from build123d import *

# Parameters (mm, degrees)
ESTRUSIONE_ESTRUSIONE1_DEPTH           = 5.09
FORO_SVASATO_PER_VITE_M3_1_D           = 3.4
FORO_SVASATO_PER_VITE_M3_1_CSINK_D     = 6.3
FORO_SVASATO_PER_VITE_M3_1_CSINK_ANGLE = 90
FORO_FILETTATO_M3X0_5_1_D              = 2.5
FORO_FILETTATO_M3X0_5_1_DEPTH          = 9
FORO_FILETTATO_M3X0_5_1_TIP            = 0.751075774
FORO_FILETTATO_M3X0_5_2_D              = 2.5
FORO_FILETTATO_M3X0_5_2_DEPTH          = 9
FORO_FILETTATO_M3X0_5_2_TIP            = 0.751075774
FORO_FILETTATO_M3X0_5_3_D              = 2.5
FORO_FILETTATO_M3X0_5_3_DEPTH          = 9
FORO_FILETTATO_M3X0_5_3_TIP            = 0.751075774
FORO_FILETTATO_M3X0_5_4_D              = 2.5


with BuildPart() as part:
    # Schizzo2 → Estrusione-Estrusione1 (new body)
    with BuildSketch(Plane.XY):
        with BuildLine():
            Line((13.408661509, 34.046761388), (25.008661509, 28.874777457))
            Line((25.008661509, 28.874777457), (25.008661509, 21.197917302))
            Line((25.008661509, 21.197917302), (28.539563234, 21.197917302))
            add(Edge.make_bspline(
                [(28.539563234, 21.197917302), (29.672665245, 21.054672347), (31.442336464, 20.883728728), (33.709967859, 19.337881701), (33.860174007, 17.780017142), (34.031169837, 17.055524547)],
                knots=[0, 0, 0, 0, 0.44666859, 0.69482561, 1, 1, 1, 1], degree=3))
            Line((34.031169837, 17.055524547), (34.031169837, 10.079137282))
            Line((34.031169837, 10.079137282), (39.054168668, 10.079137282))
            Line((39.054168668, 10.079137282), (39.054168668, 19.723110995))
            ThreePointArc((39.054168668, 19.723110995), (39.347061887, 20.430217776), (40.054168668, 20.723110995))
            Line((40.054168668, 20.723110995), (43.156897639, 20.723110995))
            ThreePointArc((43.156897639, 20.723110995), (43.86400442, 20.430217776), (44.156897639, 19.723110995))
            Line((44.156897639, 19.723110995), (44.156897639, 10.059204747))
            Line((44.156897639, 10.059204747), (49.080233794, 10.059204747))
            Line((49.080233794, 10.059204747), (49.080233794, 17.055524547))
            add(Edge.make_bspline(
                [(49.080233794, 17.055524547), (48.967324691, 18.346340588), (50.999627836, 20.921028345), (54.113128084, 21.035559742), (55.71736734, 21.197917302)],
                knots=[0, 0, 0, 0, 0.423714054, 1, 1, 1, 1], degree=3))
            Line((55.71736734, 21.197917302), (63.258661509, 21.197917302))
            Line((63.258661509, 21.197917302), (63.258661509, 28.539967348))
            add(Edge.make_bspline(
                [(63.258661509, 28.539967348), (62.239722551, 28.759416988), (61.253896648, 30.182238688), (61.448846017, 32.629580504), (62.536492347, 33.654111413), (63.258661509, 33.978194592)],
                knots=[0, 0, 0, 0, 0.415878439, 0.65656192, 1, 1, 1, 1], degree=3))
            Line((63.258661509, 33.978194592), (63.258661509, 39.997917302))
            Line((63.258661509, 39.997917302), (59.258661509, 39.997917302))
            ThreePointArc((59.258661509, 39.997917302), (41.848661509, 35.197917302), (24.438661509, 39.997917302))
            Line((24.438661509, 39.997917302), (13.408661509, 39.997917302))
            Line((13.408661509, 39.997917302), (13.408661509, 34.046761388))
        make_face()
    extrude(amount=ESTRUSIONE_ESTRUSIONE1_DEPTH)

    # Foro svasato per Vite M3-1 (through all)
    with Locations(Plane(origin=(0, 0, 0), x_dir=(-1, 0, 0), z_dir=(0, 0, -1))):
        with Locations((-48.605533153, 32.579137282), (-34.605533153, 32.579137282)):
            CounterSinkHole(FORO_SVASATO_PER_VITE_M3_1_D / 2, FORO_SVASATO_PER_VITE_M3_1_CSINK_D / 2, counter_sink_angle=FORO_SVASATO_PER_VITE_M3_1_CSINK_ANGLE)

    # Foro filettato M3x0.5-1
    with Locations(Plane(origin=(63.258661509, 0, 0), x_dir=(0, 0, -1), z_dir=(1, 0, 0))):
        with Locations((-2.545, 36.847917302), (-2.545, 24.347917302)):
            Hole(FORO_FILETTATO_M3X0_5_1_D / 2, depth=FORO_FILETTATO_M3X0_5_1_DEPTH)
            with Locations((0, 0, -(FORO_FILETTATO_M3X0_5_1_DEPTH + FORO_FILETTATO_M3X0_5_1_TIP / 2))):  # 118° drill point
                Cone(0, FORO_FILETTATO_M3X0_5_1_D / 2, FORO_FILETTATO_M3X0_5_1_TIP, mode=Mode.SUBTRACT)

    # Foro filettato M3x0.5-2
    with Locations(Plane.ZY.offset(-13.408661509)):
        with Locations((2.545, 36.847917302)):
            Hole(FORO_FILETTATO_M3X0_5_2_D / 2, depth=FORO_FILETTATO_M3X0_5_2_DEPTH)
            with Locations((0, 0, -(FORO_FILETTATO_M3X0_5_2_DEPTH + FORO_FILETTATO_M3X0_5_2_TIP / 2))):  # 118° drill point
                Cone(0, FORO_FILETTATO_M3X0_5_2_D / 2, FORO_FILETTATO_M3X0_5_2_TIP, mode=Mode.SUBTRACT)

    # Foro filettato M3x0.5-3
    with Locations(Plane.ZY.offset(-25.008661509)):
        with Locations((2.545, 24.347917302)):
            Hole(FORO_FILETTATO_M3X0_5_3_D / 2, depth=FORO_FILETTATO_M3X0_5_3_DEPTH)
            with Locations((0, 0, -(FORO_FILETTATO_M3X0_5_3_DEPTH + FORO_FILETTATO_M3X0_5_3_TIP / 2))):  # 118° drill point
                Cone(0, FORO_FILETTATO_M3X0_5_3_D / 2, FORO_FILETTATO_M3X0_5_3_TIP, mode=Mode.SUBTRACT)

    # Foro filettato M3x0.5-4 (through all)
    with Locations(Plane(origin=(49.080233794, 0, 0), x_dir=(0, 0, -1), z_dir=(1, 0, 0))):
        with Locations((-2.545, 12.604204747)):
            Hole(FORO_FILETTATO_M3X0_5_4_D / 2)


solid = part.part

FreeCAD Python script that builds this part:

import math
import FreeCAD as App
import Part
import Sketcher
Q = App.Units.Quantity

doc = App.newDocument("Part")
params = doc.addObject("Spreadsheet::Sheet", "Params")
for row, (alias, value) in enumerate([
    ("sketch1_radius", "1 mm"),
    ("sketch1_width", "4 mm"),
    ("sketch1_width2", "11.03 mm"),
    ("pad1_length", "5.09 mm"),
    ("sketch2_diameter", "3.4 mm"),
    ("hole_diameter", "3.4 mm"),
    ("hole_csink_diameter", "6.3 mm"),
    ("sketch3_diameter", "2.5 mm"),
    ("hole2_diameter", "2.5 mm"),
    ("hole2_depth", "9 mm"),
    ("sketch4_diameter", "2.5 mm"),
    ("hole3_diameter", "2.5 mm"),
    ("hole3_depth", "9 mm"),
    ("sketch5_diameter", "2.5 mm"),
    ("hole4_diameter", "2.5 mm"),
    ("hole4_depth", "9 mm"),
    ("sketch6_diameter", "2.5 mm"),
    ("hole5_diameter", "2.5 mm"),
], start=1):
    params.set(f"A{row}", alias)
    params.set(f"B{row}", "=" + value)
    params.setAlias(f"B{row}", alias)

body = doc.addObject("PartDesign::Body", "Body")

# Sketch on XY plane
sketch1 = doc.addObject("Sketcher::SketchObject", "Sketch")
body.addObject(sketch1)
sketch1.AttachmentSupport = (doc.XY_Plane, [""])
sketch1.MapMode = "FlatFace"
sketch1.addGeometry([
    Part.LineSegment(App.Vector(13.408662, 34.046761, 0), App.Vector(25.008662, 28.874777, 0)),  # 0
    Part.LineSegment(App.Vector(25.008662, 28.874777, 0), App.Vector(25.008662, 21.197917, 0)),  # 1
    Part.LineSegment(App.Vector(25.008662, 21.197917, 0), App.Vector(28.539563, 21.197917, 0)),  # 2
    Part.BSplineCurve([App.Vector(28.539563, 21.197917, 0), App.Vector(29.672665, 21.054672, 0), App.Vector(31.442336, 20.883729, 0), App.Vector(33.709968, 19.337882, 0), App.Vector(33.860174, 17.780017, 0), App.Vector(34.03117, 17.055525, 0)], [4, 1, 1, 4], [0, 0.44666859, 0.69482561, 1], False, 3, [1, 1, 1, 1, 1, 1], False),  # 3
    Part.LineSegment(App.Vector(34.03117, 17.055525, 0), App.Vector(34.03117, 10.079137, 0)),  # 4
    Part.LineSegment(App.Vector(34.03117, 10.079137, 0), App.Vector(39.054169, 10.079137, 0)),  # 5
    Part.LineSegment(App.Vector(39.054169, 10.079137, 0), App.Vector(39.054169, 19.723111, 0)),  # 6
    Part.ArcOfCircle(Part.Circle(App.Vector(40.054169, 19.723111, 0), App.Vector(0, 0, 1), 1), math.radians(90), math.radians(180)),  # 7
    Part.LineSegment(App.Vector(40.054169, 20.723111, 0), App.Vector(43.156898, 20.723111, 0)),  # 8
    Part.ArcOfCircle(Part.Circle(App.Vector(43.156898, 19.723111, 0), App.Vector(0, 0, 1), 1), math.radians(0), math.radians(90)),  # 9
    Part.LineSegment(App.Vector(44.156898, 19.723111, 0), App.Vector(44.156898, 10.059205, 0)),  # 10
    Part.LineSegment(App.Vector(44.156898, 10.059205, 0), App.Vector(49.080234, 10.059205, 0)),  # 11
    Part.LineSegment(App.Vector(49.080234, 10.059205, 0), App.Vector(49.080234, 17.055525, 0)),  # 12
    Part.BSplineCurve([App.Vector(49.080234, 17.055525, 0), App.Vector(48.967325, 18.346341, 0), App.Vector(50.999628, 20.921028, 0), App.Vector(54.113128, 21.03556, 0), App.Vector(55.717367, 21.197917, 0)], [4, 1, 4], [0, 0.423714054, 1], False, 3, [1, 1, 1, 1, 1], False),  # 13
    Part.LineSegment(App.Vector(55.717367, 21.197917, 0), App.Vector(63.258662, 21.197917, 0)),  # 14
    Part.LineSegment(App.Vector(63.258662, 21.197917, 0), App.Vector(63.258662, 28.539967, 0)),  # 15
    Part.BSplineCurve([App.Vector(63.258662, 28.539967, 0), App.Vector(62.239723, 28.759417, 0), App.Vector(61.253897, 30.182239, 0), App.Vector(61.448846, 32.629581, 0), App.Vector(62.536492, 33.654111, 0), App.Vector(63.258662, 33.978195, 0)], [4, 1, 1, 4], [0, 0.415878439, 0.65656192, 1], False, 3, [1, 1, 1, 1, 1, 1], False),  # 16
    Part.LineSegment(App.Vector(63.258662, 33.978195, 0), App.Vector(63.258662, 39.997917, 0)),  # 17
    Part.LineSegment(App.Vector(63.258662, 39.997917, 0), App.Vector(59.258662, 39.997917, 0)),  # 18
    Part.ArcOfCircle(Part.Circle(App.Vector(41.848662, 69.171678, 0), App.Vector(0, 0, 1), 33.97376), math.radians(-120.827449), math.radians(-59.172551)),  # 19
    Part.LineSegment(App.Vector(24.438662, 39.997917, 0), App.Vector(13.408662, 39.997917, 0)),  # 20
    Part.LineSegment(App.Vector(13.408662, 39.997917, 0), App.Vector(13.408662, 34.046761, 0)),  # 21
], False)
sketch1.addConstraint([
    Sketcher.Constraint("Block", 3),
    Sketcher.Constraint("Block", 13),
    Sketcher.Constraint("Block", 16),
    Sketcher.Constraint("Coincident", 0, 2, 1, 1),
    Sketcher.Constraint("Coincident", 1, 2, 2, 1),
    Sketcher.Constraint("Coincident", 2, 2, 3, 1),
    Sketcher.Constraint("Coincident", 3, 2, 4, 1),
    Sketcher.Constraint("Coincident", 4, 2, 5, 1),
    Sketcher.Constraint("Coincident", 5, 2, 6, 1),
    Sketcher.Constraint("Tangent", 6, 2, 7, 2),
    Sketcher.Constraint("Tangent", 7, 1, 8, 1),
    Sketcher.Constraint("Tangent", 8, 2, 9, 2),
    Sketcher.Constraint("Tangent", 9, 1, 10, 1),
    Sketcher.Constraint("Coincident", 10, 2, 11, 1),
    Sketcher.Constraint("Coincident", 11, 2, 12, 1),
    Sketcher.Constraint("Coincident", 12, 2, 13, 1),
    Sketcher.Constraint("Coincident", 13, 2, 14, 1),
    Sketcher.Constraint("Coincident", 14, 2, 15, 1),
    Sketcher.Constraint("Coincident", 15, 2, 16, 1),
    Sketcher.Constraint("Coincident", 16, 2, 17, 1),
    Sketcher.Constraint("Coincident", 17, 2, 18, 1),
    Sketcher.Constraint("Coincident", 18, 2, 19, 2),
    Sketcher.Constraint("Coincident", 19, 1, 20, 1),
    Sketcher.Constraint("Coincident", 20, 2, 21, 1),
    Sketcher.Constraint("Coincident", 21, 2, 0, 1),
    Sketcher.Constraint("Vertical", 1),
    Sketcher.Constraint("Horizontal", 2),
    Sketcher.Constraint("Vertical", 4),
    Sketcher.Constraint("Horizontal", 5),
    Sketcher.Constraint("Vertical", 6),
    Sketcher.Constraint("Horizontal", 8),
    Sketcher.Constraint("Vertical", 10),
    Sketcher.Constraint("Horizontal", 11),
    Sketcher.Constraint("Vertical", 12),
    Sketcher.Constraint("Horizontal", 14),
    Sketcher.Constraint("Vertical", 15),
    Sketcher.Constraint("Vertical", 17),
    Sketcher.Constraint("Horizontal", 18),
    Sketcher.Constraint("Horizontal", 20),
    Sketcher.Constraint("Vertical", 21),
    Sketcher.Constraint("Equal", 7, 9),
    Sketcher.Constraint("Horizontal", 18, 2, 19, 1),
    Sketcher.Constraint("Radius", 7, Q("1 mm")),
    Sketcher.Constraint("DistanceX", 18, 2, 18, 1, Q("4 mm")),
    Sketcher.Constraint("DistanceX", 20, 2, 20, 1, Q("11.03 mm")),
    Sketcher.Constraint("DistanceY", 14, 2, 17, 2, Q("18.8 mm")),
    Sketcher.Constraint("DistanceX", 20, 2, 0, 2, Q("11.6 mm")),
    Sketcher.Constraint("DistanceX", 5, 1, 5, 2, Q("5.022999 mm")),
    Sketcher.Constraint("Radius", 19, Q("33.97376 mm")),
    Sketcher.Constraint("DistanceX", 0, 2, 19, 3, Q("16.84 mm")),
    Sketcher.Constraint("DistanceX", 8, 1, 8, 2, Q("3.102729 mm")),
    Sketcher.Constraint("DistanceY", 1, 2, 1, 1, Q("7.67686 mm")),
    Sketcher.Constraint("DistanceY", 12, 1, 12, 2, Q("6.99632 mm")),
    Sketcher.Constraint("DistanceY", 4, 2, 4, 1, Q("6.976387 mm")),
    Sketcher.Constraint("DistanceY", 6, 1, 6, 2, Q("9.643974 mm")),
    Sketcher.Constraint("DistanceY", 21, 2, 21, 1, Q("5.951156 mm")),
])
sketch1.setExpression("Constraints[42]", "Params.sketch1_radius")
sketch1.setExpression("Constraints[43]", "Params.sketch1_width")
sketch1.setExpression("Constraints[44]", "Params.sketch1_width2")
pad1 = doc.addObject("PartDesign::Pad", "Pad")
body.addObject(pad1)
pad1.Profile = sketch1
pad1.setExpression("Length", "Params.pad1_length")

# Sketch on XY plane
sketch2 = doc.addObject("Sketcher::SketchObject", "Sketch001")
body.addObject(sketch2)
sketch2.AttachmentSupport = (doc.XY_Plane, [""])
sketch2.MapMode = "FlatFace"
sketch2.addGeometry([
    Part.Circle(App.Vector(48.6, 32.6, 0), App.Vector(0, 0, 1), 1.7),
    Part.Circle(App.Vector(34.6, 32.6, 0), App.Vector(0, 0, 1), 1.7),
], False)
sketch2.addConstraint([
    Sketcher.Constraint("Equal", 0, 1),
    Sketcher.Constraint("Horizontal", 0, 3, 1, 3),
    Sketcher.Constraint("Diameter", 0, Q("3.4 mm")),
    Sketcher.Constraint("DistanceX", 1, 3, 0, 3, Q("14 mm")),
    Sketcher.Constraint("DistanceX", -1, 1, 0, 3, Q("48.605533 mm")),
    Sketcher.Constraint("DistanceY", -1, 1, 0, 3, Q("32.579137 mm")),
])
sketch2.setExpression("Constraints[2]", "Params.sketch2_diameter")
doc.recompute()
hole = doc.addObject("PartDesign::Hole", "Hole")
body.addObject(hole)
hole.Profile = sketch2
hole.ThreadType = "None"
hole.setExpression("Diameter", "Params.hole_diameter")
hole.DepthType = "ThroughAll"
hole.HoleCutType = "Countersink"
hole.setExpression("HoleCutDiameter", "Params.hole_csink_diameter")
hole.HoleCutCountersinkAngle = 90
hole.Reversed = True

# Sketch on YZ plane
sketch3 = doc.addObject("Sketcher::SketchObject", "Sketch002")
body.addObject(sketch3)
sketch3.AttachmentSupport = (doc.YZ_Plane, [""])
sketch3.MapMode = "FlatFace"
sketch3.AttachmentOffset = App.Placement(App.Vector(0, 0, 63.258662), App.Rotation())
sketch3.addGeometry([
    Part.Circle(App.Vector(36.8, 2.5, 0), App.Vector(0, 0, 1), 1.2),
    Part.Circle(App.Vector(24.3, 2.5, 0), App.Vector(0, 0, 1), 1.2),
], False)
sketch3.addConstraint([
    Sketcher.Constraint("Equal", 0, 1),
    Sketcher.Constraint("Horizontal", 0, 3, 1, 3),
    Sketcher.Constraint("Diameter", 0, Q("2.5 mm")),
    Sketcher.Constraint("DistanceX", 1, 3, 0, 3, Q("12.5 mm")),
    Sketcher.Constraint("DistanceY", -1, 1, 0, 3, Q("2.545 mm")),
    Sketcher.Constraint("DistanceX", -1, 1, 0, 3, Q("36.847917 mm")),
])
sketch3.setExpression("Constraints[2]", "Params.sketch3_diameter")
doc.recompute()
hole2 = doc.addObject("PartDesign::Hole", "Hole001")
body.addObject(hole2)
hole2.Profile = sketch3
hole2.ThreadType = "None"
hole2.setExpression("Diameter", "Params.hole2_diameter")
hole2.DepthType = "Dimension"
hole2.setExpression("Depth", "Params.hole2_depth")
hole2.DrillPoint = "Angled"
hole2.DrillPointAngle = 118

# Sketch on YZ plane
sketch4 = doc.addObject("Sketcher::SketchObject", "Sketch003")
body.addObject(sketch4)
sketch4.AttachmentSupport = (doc.YZ_Plane, [""])
sketch4.MapMode = "FlatFace"
sketch4.AttachmentOffset = App.Placement(App.Vector(0, 0, 13.408662), App.Rotation())
sketch4.addGeometry(Part.Circle(App.Vector(36.8, 2.5, 0), App.Vector(0, 0, 1), 1.2), False)
sketch4.addConstraint([
    Sketcher.Constraint("Diameter", 0, Q("2.5 mm")),
    Sketcher.Constraint("DistanceY", -1, 1, 0, 3, Q("2.545 mm")),
    Sketcher.Constraint("DistanceX", -1, 1, 0, 3, Q("36.847917 mm")),
])
sketch4.setExpression("Constraints[0]", "Params.sketch4_diameter")
doc.recompute()
hole3 = doc.addObject("PartDesign::Hole", "Hole002")
body.addObject(hole3)
hole3.Profile = sketch4
hole3.ThreadType = "None"
hole3.setExpression("Diameter", "Params.hole3_diameter")
hole3.DepthType = "Dimension"
hole3.setExpression("Depth", "Params.hole3_depth")
hole3.DrillPoint = "Angled"
hole3.DrillPointAngle = 118
hole3.Reversed = True

# Sketch on YZ plane
sketch5 = doc.addObject("Sketcher::SketchObject", "Sketch004")
body.addObject(sketch5)
sketch5.AttachmentSupport = (doc.YZ_Plane, [""])
sketch5.MapMode = "FlatFace"
sketch5.AttachmentOffset = App.Placement(App.Vector(0, 0, 25.008662), App.Rotation())
sketch5.addGeometry(Part.Circle(App.Vector(24.3, 2.5, 0), App.Vector(0, 0, 1), 1.2), False)
sketch5.addConstraint([
    Sketcher.Constraint("Diameter", 0, Q("2.5 mm")),
    Sketcher.Constraint("DistanceY", -1, 1, 0, 3, Q("2.545 mm")),
    Sketcher.Constraint("DistanceX", -1, 1, 0, 3, Q("24.347917 mm")),
])
sketch5.setExpression("Constraints[0]", "Params.sketch5_diameter")
doc.recompute()
hole4 = doc.addObject("PartDesign::Hole", "Hole003")
body.addObject(hole4)
hole4.Profile = sketch5
hole4.ThreadType = "None"
hole4.setExpression("Diameter", "Params.hole4_diameter")
hole4.DepthType = "Dimension"
hole4.setExpression("Depth", "Params.hole4_depth")
hole4.DrillPoint = "Angled"
hole4.DrillPointAngle = 118
hole4.Reversed = True

# Sketch on YZ plane
sketch6 = doc.addObject("Sketcher::SketchObject", "Sketch005")
body.addObject(sketch6)
sketch6.AttachmentSupport = (doc.YZ_Plane, [""])
sketch6.MapMode = "FlatFace"
sketch6.AttachmentOffset = App.Placement(App.Vector(0, 0, 49.080234), App.Rotation())
sketch6.addGeometry(Part.Circle(App.Vector(12.6, 2.5, 0), App.Vector(0, 0, 1), 1.2), False)
sketch6.addConstraint([
    Sketcher.Constraint("Diameter", 0, Q("2.5 mm")),
    Sketcher.Constraint("DistanceY", -1, 1, 0, 3, Q("2.545 mm")),
    Sketcher.Constraint("DistanceX", -1, 1, 0, 3, Q("12.604205 mm")),
])
sketch6.setExpression("Constraints[0]", "Params.sketch6_diameter")
doc.recompute()
hole5 = doc.addObject("PartDesign::Hole", "Hole004")
body.addObject(hole5)
hole5.Profile = sketch6
hole5.ThreadType = "None"
hole5.setExpression("Diameter", "Params.hole5_diameter")
hole5.DepthType = "ThroughAll"

doc.recompute()
